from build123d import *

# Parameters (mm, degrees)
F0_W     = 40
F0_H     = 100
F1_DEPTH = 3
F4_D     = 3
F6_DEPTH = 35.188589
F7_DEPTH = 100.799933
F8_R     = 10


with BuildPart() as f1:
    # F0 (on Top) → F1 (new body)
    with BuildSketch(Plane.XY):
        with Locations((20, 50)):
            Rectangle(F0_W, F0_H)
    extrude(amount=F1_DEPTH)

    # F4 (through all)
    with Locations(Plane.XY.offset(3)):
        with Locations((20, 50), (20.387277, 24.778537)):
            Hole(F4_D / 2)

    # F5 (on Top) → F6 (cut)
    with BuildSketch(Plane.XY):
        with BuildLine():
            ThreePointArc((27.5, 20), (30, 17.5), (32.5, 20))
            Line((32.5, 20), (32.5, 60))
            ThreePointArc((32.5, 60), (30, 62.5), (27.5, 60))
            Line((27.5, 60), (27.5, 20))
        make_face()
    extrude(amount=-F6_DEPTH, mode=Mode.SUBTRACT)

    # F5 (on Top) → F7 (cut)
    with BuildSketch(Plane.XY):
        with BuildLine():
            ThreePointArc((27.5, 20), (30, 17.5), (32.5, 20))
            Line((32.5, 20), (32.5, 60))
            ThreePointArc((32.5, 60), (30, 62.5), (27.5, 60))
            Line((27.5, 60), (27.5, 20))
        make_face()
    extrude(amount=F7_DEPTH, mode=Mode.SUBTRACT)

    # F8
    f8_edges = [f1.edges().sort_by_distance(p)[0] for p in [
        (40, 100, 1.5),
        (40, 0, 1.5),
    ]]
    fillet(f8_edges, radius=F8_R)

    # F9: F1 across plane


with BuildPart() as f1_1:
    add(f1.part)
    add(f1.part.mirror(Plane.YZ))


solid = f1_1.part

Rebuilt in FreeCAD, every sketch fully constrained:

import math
import FreeCAD as App
import Part
import Sketcher

V = App.Vector


def edges_at(feature, points):
    """Names of the edges that pass closest to the given points."""
    edges = feature.Shape.Edges
    near = lambda p: min(range(len(edges)), key=lambda i: edges[i].distToShape(Part.Vertex(*p))[0])
    return sorted({f"Edge{near(p) + 1}" for p in points})


def add_polygon(sketch, points):
    """Adds a closed chain of lines whose ends are joined by coincident constraints."""
    first, n = sketch.GeometryCount, len(points)
    for a, b in zip(points, points[1:] + points[:1]):
        sketch.addGeometry(Part.LineSegment(App.Vector(*a, 0), App.Vector(*b, 0)), False)
    for i in range(n):
        sketch.addConstraint(Sketcher.Constraint("Coincident", first + i, 2, first + (i + 1) % n, 1))

doc = App.newDocument("Part")
body = doc.addObject("PartDesign::Body", "Body")

sketch1 = doc.addObject("Sketcher::SketchObject", "Sketch")
body.addObject(sketch1)
sketch1.AttachmentSupport = (doc.XY_Plane, [""])
sketch1.MapMode = "FlatFace"
add_polygon(sketch1, [(0, 100), (0, 0), (40, 0), (40, 100)])
sketch1.addConstraint([
    Sketcher.Constraint("Vertical", 0),
    Sketcher.Constraint("Horizontal", 1),
    Sketcher.Constraint("Vertical", 2),
    Sketcher.Constraint("Horizontal", 3),
    Sketcher.Constraint("Coincident", 0, 2, -1, 1),
    Sketcher.Constraint("DistanceX", 1, 1, 1, 2, 40.0),
    Sketcher.Constraint("DistanceY", 0, 2, 0, 1, 100.0),
])
pad1 = doc.addObject("PartDesign::Pad", "Pad")
body.addObject(pad1)
pad1.Profile = sketch1
pad1.Length = 3

sketch2 = doc.addObject("Sketcher::SketchObject", "Sketch001")
body.addObject(sketch2)
sketch2.AttachmentSupport = (doc.XY_Plane, [""])
sketch2.MapMode = "FlatFace"
sketch2.AttachmentOffset = App.Placement(V(0, 0, 3), App.Rotation())
sketch2.addGeometry([
    Part.Circle(V(20, 50, 0), V(0, 0, 1), 1.5),
    Part.Circle(V(20.387277, 24.778537, 0), V(0, 0, 1), 1.5),
], False)
sketch2.addConstraint([
    Sketcher.Constraint("Equal", 0, 1),
    Sketcher.Constraint("Diameter", 0, 3.0),
    Sketcher.Constraint("DistanceX", -1, 1, 0, 3, 20.0),
    Sketcher.Constraint("DistanceY", -1, 1, 0, 3, 50.0),
    Sketcher.Constraint("DistanceX", -1, 1, 1, 3, 20.387277),
    Sketcher.Constraint("DistanceY", -1, 1, 1, 3, 24.778537),
])
doc.recompute()
hole = doc.addObject("PartDesign::Hole", "Hole")
body.addObject(hole)
hole.Profile = sketch2
hole.ThreadType = "None"
hole.Diameter = 3
hole.DepthType = "ThroughAll"

sketch3 = doc.addObject("Sketcher::SketchObject", "Sketch002")
body.addObject(sketch3)
sketch3.AttachmentSupport = (doc.XY_Plane, [""])
sketch3.MapMode = "FlatFace"
sketch3.addGeometry([
    Part.ArcOfCircle(Part.Circle(V(30, 20, 0), V(0, 0, 1), 2.5), math.radians(180), math.radians(360)),
    Part.LineSegment(V(32.5, 20, 0), V(32.5, 60, 0)),
    Part.ArcOfCircle(Part.Circle(V(30, 60, 0), V(0, 0, 1), 2.5), math.radians(0), math.radians(180)),
    Part.LineSegment(V(27.5, 60, 0), V(27.5, 20, 0)),
], False)
sketch3.addConstraint([
    Sketcher.Constraint("Tangent", 0, 2, 1, 1),
    Sketcher.Constraint("Tangent", 1, 2, 2, 1),
    Sketcher.Constraint("Tangent", 2, 2, 3, 1),
    Sketcher.Constraint("Tangent", 3, 2, 0, 1),
    Sketcher.Constraint("Vertical", 1),
    Sketcher.Constraint("Vertical", 3),
    Sketcher.Constraint("Radius", 0, 2.5),
    Sketcher.Constraint("DistanceY", 1, 1, 1, 2, 40.0),
    Sketcher.Constraint("DistanceX", -1, 1, 0, 3, 30.0),
    Sketcher.Constraint("DistanceY", -1, 1, 0, 3, 20.0),
])
pocket1 = doc.addObject("PartDesign::Pocket", "Pocket")
body.addObject(pocket1)
pocket1.Profile = sketch3
pocket1.Length = 35.188589

sketch4 = doc.addObject("Sketcher::SketchObject", "Sketch003")
body.addObject(sketch4)
sketch4.AttachmentSupport = (doc.XY_Plane, [""])
sketch4.MapMode = "FlatFace"
sketch4.addGeometry([
    Part.ArcOfCircle(Part.Circle(V(30, 20, 0), V(0, 0, 1), 2.5), math.radians(180), math.radians(360)),
    Part.LineSegment(V(32.5, 20, 0), V(32.5, 60, 0)),
    Part.ArcOfCircle(Part.Circle(V(30, 60, 0), V(0, 0, 1), 2.5), math.radians(0), math.radians(180)),
    Part.LineSegment(V(27.5, 60, 0), V(27.5, 20, 0)),
], False)
sketch4.addConstraint([
    Sketcher.Constraint("Tangent", 0, 2, 1, 1),
    Sketcher.Constraint("Tangent", 1, 2, 2, 1),
    Sketcher.Constraint("Tangent", 2, 2, 3, 1),
    Sketcher.Constraint("Tangent", 3, 2, 0, 1),
    Sketcher.Constraint("Vertical", 1),
    Sketcher.Constraint("Vertical", 3),
    Sketcher.Constraint("Radius", 0, 2.5),
    Sketcher.Constraint("DistanceY", 1, 1, 1, 2, 40.0),
    Sketcher.Constraint("DistanceX", -1, 1, 0, 3, 30.0),
    Sketcher.Constraint("DistanceY", -1, 1, 0, 3, 20.0),
])
pocket2 = doc.addObject("PartDesign::Pocket", "Pocket001")
body.addObject(pocket2)
pocket2.Profile = sketch4
pocket2.Length = 100.799933
pocket2.Reversed = True
doc.recompute()

fillet = doc.addObject("PartDesign::Fillet", "Fillet")
body.addObject(fillet)
fillet.Base = (pocket2, edges_at(pocket2, [(40, 100, 1.5), (40, 0, 1.5)]))
fillet.Radius = 10
body2 = doc.addObject("PartDesign::Body", "Body001")
doc.recompute()

body2.BaseFeature = body
doc.recompute()

mirroring = doc.addObject("Part::Mirroring", "Mirroring")
mirroring.Source = body
mirroring.Base = V(0, 0, 0)
mirroring.Normal = V(1, 0, 0)
body3 = doc.addObject("PartDesign::Body", "Body002")
body3.BaseFeature = mirroring
boolean = doc.addObject("PartDesign::Boolean", "Boolean")
body2.addObject(boolean)
boolean.Type = "Fuse"
boolean.addObjects([body3])
doc.recompute()
mirroring.Visibility = False

doc.recompute()
